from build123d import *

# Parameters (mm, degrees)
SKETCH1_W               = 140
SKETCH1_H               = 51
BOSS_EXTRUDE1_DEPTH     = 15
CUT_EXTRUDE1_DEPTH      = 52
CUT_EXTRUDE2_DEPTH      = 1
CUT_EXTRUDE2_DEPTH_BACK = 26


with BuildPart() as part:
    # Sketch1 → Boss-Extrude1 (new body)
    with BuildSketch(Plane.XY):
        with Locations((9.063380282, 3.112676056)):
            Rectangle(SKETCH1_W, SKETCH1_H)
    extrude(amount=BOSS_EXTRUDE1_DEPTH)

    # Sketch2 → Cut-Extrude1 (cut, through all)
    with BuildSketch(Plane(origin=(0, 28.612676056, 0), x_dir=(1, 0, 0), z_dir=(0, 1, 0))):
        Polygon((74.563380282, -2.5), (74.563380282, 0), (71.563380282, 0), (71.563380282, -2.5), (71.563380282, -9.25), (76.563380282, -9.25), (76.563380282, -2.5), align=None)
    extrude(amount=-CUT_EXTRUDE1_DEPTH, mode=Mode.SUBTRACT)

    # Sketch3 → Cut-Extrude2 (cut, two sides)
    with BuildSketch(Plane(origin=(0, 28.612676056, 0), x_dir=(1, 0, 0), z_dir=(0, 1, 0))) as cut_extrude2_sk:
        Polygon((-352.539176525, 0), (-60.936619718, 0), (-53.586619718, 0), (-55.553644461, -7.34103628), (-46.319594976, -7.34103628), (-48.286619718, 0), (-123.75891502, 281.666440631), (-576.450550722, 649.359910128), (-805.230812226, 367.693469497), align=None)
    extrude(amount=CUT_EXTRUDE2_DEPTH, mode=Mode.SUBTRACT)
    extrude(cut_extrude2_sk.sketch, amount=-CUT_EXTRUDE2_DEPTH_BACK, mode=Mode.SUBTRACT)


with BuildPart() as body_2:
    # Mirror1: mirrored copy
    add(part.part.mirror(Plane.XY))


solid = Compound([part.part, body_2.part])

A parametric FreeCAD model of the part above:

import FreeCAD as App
import Part
import Sketcher
from FreeCAD import Vector
Q = App.Units.Quantity


def add_polygon(sketch, points):
    """Adds a closed chain of lines whose ends are joined by coincident constraints."""
    first, n = sketch.GeometryCount, len(points)
    for a, b in zip(points, points[1:] + points[:1]):
        sketch.addGeometry(Part.LineSegment(App.Vector(*a, 0), App.Vector(*b, 0)), False)
    for i in range(n):
        sketch.addConstraint(Sketcher.Constraint("Coincident", first + i, 2, first + (i + 1) % n, 1))

doc = App.newDocument("Part")
params = doc.addObject("Spreadsheet::Sheet", "Params")
for row, (alias, value) in enumerate([
    ("sketch1_width", "140 mm"),
    ("sketch1_height", "51 mm"),
    ("pad1_length", "15 mm"),
    ("sketch2_width", "3 mm"),
    ("sketch2_width2", "5 mm"),
    ("sketch2_height", "2.5 mm"),
    ("sketch2_height2", "9.25 mm"),
    ("sketch3_length", "7.6 mm"),
    ("pocket2_length", "1 mm"),
    ("pocket2_length2", "26 mm"),
], start=1):
    params.set(f"A{row}", alias)
    params.set(f"B{row}", "=" + value)
    params.setAlias(f"B{row}", alias)

body = doc.addObject("PartDesign::Body", "Body")

sketch1 = doc.addObject("Sketcher::SketchObject", "Sketch")
body.addObject(sketch1)
sketch1.AttachmentSupport = (doc.XY_Plane, [""])
sketch1.MapMode = "FlatFace"
add_polygon(sketch1, [(-61, 29), (-61, -22), (79, -22), (79, 29)])
sketch1.addConstraint([
    Sketcher.Constraint("Vertical", 0),
    Sketcher.Constraint("Horizontal", 1),
    Sketcher.Constraint("Vertical", 2),
    Sketcher.Constraint("Horizontal", 3),
    Sketcher.Constraint("DistanceX", 1, 1, 1, 2, 140.0),
    Sketcher.Constraint("DistanceY", 0, 2, 0, 1, 51.0),
    Sketcher.Constraint("DistanceX", 0, 2, -1, 1, 60.93662),
    Sketcher.Constraint("DistanceY", 0, 2, -1, 1, 22.387324),
])
sketch1.setExpression("Constraints[8]", "Params.sketch1_width")
sketch1.setExpression("Constraints[9]", "Params.sketch1_height")
pad1 = doc.addObject("PartDesign::Pad", "Pad")
body.addObject(pad1)
pad1.Profile = sketch1
pad1.setExpression("Length", "Params.pad1_length")

sketch2 = doc.addObject("Sketcher::SketchObject", "Sketch001")
body.addObject(sketch2)
sketch2.AttachmentSupport = (doc.XZ_Plane, [""])
sketch2.MapMode = "FlatFace"
sketch2.AttachmentOffset = App.Placement(Vector(0, 0, -28.612676), App.Rotation())
add_polygon(sketch2, [(74.6, 2.5), (74.6, 0), (71.6, 0), (71.6, 9.2), (76.6, 9.2), (76.6, 2.5)])
sketch2.addConstraint([
    Sketcher.Constraint("Vertical", 0),
    Sketcher.Constraint("Horizontal", 1),
    Sketcher.Constraint("Vertical", 2),
    Sketcher.Constraint("Horizontal", 3),
    Sketcher.Constraint("Vertical", 4),
    Sketcher.Constraint("Horizontal", 5),
    Sketcher.Constraint("PointOnObject", 0, 2, -1),
    Sketcher.Constraint("DistanceX", 1, 2, 1, 1, 3.0),
    Sketcher.Constraint("DistanceX", 3, 1, 3, 2, 5.0),
    Sketcher.Constraint("DistanceY", 0, 2, 0, 1, 2.5),
    Sketcher.Constraint("DistanceY", 2, 1, 2, 2, 9.25),
    Sketcher.Constraint("DistanceX", -1, 1, 0, 2, 74.56338),
])
sketch2.setExpression("Constraints[13]", "Params.sketch2_width")
sketch2.setExpression("Constraints[14]", "Params.sketch2_width2")
sketch2.setExpression("Constraints[15]", "Params.sketch2_height")
sketch2.setExpression("Constraints[16]", "Params.sketch2_height2")
pocket1 = doc.addObject("PartDesign::Pocket", "Pocket")
body.addObject(pocket1)
pocket1.Profile = sketch2
pocket1.Type = "ThroughAll"
pocket1.Reversed = True

sketch3 = doc.addObject("Sketcher::SketchObject", "Sketch002")
body.addObject(sketch3)
sketch3.AttachmentSupport = (doc.XZ_Plane, [""])
sketch3.MapMode = "FlatFace"
sketch3.AttachmentOffset = App.Placement(Vector(0, 0, -28.612676), App.Rotation())
add_polygon(sketch3, [(-353, 0), (-54, 0), (-56, 7), (-46, 7), (-48, 0), (-124, -282), (-576, -649), (-805, -368)])
sketch3.addConstraint([
    Sketcher.Constraint("Horizontal", 0),
    Sketcher.Constraint("Horizontal", 2),
    Sketcher.Constraint("PointOnObject", 0, 2, -1),
    Sketcher.Constraint("PointOnObject", 3, 2, -1),
    Sketcher.Constraint("Parallel", 3, 4),
    Sketcher.Constraint("Perpendicular", 5, 6),
    Sketcher.Constraint("Perpendicular", 6, 7),
    Sketcher.Constraint("Equal", 1, 3),
    Sketcher.Constraint("Equal", 5, 7),
    Sketcher.Constraint("Angle", 1, Q("105 deg")),
    Sketcher.Constraint("Distance", 1, 7.6),
    Sketcher.Constraint("DistanceX", 0, 2, 3, 2, 5.3),
    Sketcher.Constraint("Distance", 6, 362.872418),
    Sketcher.Constraint("DistanceX", 0, 1, 0, 2, 298.952557),
    Sketcher.Constraint("DistanceX", 0, 2, -1, 1, 53.58662),
    Sketcher.Constraint("DistanceX", 5, 2, -1, 1, 576.450551),
])
sketch3.setExpression("Constraints[18]", "Params.sketch3_length")
pocket2 = doc.addObject("PartDesign::Pocket", "Pocket001")
body.addObject(pocket2)
pocket2.Profile = sketch3
pocket2.Type = "TwoLengths"
pocket2.setExpression("Length", "Params.pocket2_length")
pocket2.setExpression("Length2", "Params.pocket2_length2")
body2 = doc.addObject("PartDesign::Body", "Body001")
doc.recompute()

mirroring = doc.addObject("Part::Mirroring", "Mirroring")
mirroring.Source = body
mirroring.Base = Vector(0, 0, 0)
mirroring.Normal = Vector(0, 0, 1)
body2.BaseFeature = mirroring
doc.recompute()
mirroring.Visibility = False

doc.recompute()
